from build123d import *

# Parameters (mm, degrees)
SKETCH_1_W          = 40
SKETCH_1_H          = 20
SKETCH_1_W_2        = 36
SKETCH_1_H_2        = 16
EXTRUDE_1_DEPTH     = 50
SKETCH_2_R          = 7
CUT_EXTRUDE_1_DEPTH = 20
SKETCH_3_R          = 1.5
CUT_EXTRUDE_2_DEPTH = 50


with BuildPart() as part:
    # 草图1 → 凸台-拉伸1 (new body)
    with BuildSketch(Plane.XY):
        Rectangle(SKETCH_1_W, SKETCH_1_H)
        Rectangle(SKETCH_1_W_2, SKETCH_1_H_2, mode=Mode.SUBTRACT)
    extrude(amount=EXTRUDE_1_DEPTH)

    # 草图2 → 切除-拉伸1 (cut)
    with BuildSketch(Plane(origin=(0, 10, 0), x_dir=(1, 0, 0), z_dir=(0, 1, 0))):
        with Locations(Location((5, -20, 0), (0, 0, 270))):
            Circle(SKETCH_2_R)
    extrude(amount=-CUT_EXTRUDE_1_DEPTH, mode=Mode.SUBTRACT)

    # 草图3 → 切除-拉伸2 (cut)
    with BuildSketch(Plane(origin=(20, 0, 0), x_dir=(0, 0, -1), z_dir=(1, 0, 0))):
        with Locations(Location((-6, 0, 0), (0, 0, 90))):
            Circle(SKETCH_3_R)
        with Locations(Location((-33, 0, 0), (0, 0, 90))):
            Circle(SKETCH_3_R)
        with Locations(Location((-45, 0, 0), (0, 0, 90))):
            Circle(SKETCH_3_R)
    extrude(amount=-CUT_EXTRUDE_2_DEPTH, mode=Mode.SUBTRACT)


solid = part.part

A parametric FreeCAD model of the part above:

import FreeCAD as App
import Part
import Sketcher
from FreeCAD import Vector
Q = App.Units.Quantity


def add_polygon(sketch, points):
    """Adds a closed chain of lines whose ends are joined by coincident constraints."""
    first, n = sketch.GeometryCount, len(points)
    for a, b in zip(points, points[1:] + points[:1]):
        sketch.addGeometry(Part.LineSegment(App.Vector(*a, 0), App.Vector(*b, 0)), False)
    for i in range(n):
        sketch.addConstraint(Sketcher.Constraint("Coincident", first + i, 2, first + (i + 1) % n, 1))

doc = App.newDocument("Part")
body = doc.addObject("PartDesign::Body", "Body")

sketch1 = body.newObject("Sketcher::SketchObject", "Sketch")
sketch1.AttachmentSupport = (doc.getObject("XY_Plane"), [""])
sketch1.MapMode = "FlatFace"
add_polygon(sketch1, [(-20, 10), (-20, -10), (20, -10), (20, 10)])
add_polygon(sketch1, [(18, -8), (-18, -8), (-18, 8), (18, 8)])
sketch1.addConstraint([
    Sketcher.Constraint("Vertical", 0),
    Sketcher.Constraint("Horizontal", 1),
    Sketcher.Constraint("Vertical", 2),
    Sketcher.Constraint("Horizontal", 3),
    Sketcher.Constraint("Horizontal", 4),
    Sketcher.Constraint("Vertical", 5),
    Sketcher.Constraint("Horizontal", 6),
    Sketcher.Constraint("Vertical", 7),
    Sketcher.Constraint("Symmetric", 0, 2, 2, 2, -1, 1),
    Sketcher.Constraint("Symmetric", 4, 2, 6, 2, -1, 1),
    Sketcher.Constraint("DistanceX", 1, 1, 1, 2, Q("40 mm")),
    Sketcher.Constraint("DistanceX", 4, 2, 4, 1, Q("36 mm")),
    Sketcher.Constraint("DistanceY", 0, 2, 0, 1, Q("20 mm")),
    Sketcher.Constraint("DistanceY", 5, 1, 5, 2, Q("16 mm")),
])
pad1 = body.newObject("PartDesign::Pad", "Pad")
pad1.Profile = sketch1
pad1.Length = 50

sketch2 = body.newObject("Sketcher::SketchObject", "Sketch001")
sketch2.AttachmentSupport = (doc.getObject("XZ_Plane"), [""])
sketch2.MapMode = "FlatFace"
sketch2.AttachmentOffset = App.Placement(Vector(0, 0, -10), App.Rotation())
sketch2.addGeometry(Part.Circle(Vector(5, 20, 0), Vector(0, 0, 1), 7), False)
sketch2.addConstraint([
    Sketcher.Constraint("Diameter", 0, Q("14 mm")),
    Sketcher.Constraint("DistanceX", -1, 1, 0, 3, Q("5 mm")),
    Sketcher.Constraint("DistanceY", -1, 1, 0, 3, Q("20 mm")),
])
pocket1 = body.newObject("PartDesign::Pocket", "Pocket")
pocket1.Profile = sketch2
pocket1.Length = 20
pocket1.Reversed = True

sketch3 = body.newObject("Sketcher::SketchObject", "Sketch002")
sketch3.AttachmentSupport = (doc.getObject("YZ_Plane"), [""])
sketch3.MapMode = "FlatFace"
sketch3.AttachmentOffset = App.Placement(Vector(0, 0, 20), App.Rotation())
sketch3.addGeometry([
    Part.Circle(Vector(0, 6, 0), Vector(0, 0, 1), 1.5),
    Part.Circle(Vector(0, 33, 0), Vector(0, 0, 1), 1.5),
    Part.Circle(Vector(0, 45, 0), Vector(0, 0, 1), 1.5),
], False)
sketch3.addConstraint([
    Sketcher.Constraint("Equal", 0, 1),
    Sketcher.Constraint("Equal", 1, 2),
    Sketcher.Constraint("PointOnObject", 0, 3, -2),
    Sketcher.Constraint("PointOnObject", 1, 3, -2),
    Sketcher.Constraint("PointOnObject", 2, 3, -2),
    Sketcher.Constraint("Diameter", 0, Q("3 mm")),
    Sketcher.Constraint("DistanceY", -1, 1, 0, 3, Q("6 mm")),
    Sketcher.Constraint("DistanceY", -1, 1, 1, 3, Q("33 mm")),
    Sketcher.Constraint("DistanceY", -1, 1, 2, 3, Q("45 mm")),
])
pocket2 = body.newObject("PartDesign::Pocket", "Pocket001")
pocket2.Profile = sketch3
pocket2.Length = 50

doc.recompute()
